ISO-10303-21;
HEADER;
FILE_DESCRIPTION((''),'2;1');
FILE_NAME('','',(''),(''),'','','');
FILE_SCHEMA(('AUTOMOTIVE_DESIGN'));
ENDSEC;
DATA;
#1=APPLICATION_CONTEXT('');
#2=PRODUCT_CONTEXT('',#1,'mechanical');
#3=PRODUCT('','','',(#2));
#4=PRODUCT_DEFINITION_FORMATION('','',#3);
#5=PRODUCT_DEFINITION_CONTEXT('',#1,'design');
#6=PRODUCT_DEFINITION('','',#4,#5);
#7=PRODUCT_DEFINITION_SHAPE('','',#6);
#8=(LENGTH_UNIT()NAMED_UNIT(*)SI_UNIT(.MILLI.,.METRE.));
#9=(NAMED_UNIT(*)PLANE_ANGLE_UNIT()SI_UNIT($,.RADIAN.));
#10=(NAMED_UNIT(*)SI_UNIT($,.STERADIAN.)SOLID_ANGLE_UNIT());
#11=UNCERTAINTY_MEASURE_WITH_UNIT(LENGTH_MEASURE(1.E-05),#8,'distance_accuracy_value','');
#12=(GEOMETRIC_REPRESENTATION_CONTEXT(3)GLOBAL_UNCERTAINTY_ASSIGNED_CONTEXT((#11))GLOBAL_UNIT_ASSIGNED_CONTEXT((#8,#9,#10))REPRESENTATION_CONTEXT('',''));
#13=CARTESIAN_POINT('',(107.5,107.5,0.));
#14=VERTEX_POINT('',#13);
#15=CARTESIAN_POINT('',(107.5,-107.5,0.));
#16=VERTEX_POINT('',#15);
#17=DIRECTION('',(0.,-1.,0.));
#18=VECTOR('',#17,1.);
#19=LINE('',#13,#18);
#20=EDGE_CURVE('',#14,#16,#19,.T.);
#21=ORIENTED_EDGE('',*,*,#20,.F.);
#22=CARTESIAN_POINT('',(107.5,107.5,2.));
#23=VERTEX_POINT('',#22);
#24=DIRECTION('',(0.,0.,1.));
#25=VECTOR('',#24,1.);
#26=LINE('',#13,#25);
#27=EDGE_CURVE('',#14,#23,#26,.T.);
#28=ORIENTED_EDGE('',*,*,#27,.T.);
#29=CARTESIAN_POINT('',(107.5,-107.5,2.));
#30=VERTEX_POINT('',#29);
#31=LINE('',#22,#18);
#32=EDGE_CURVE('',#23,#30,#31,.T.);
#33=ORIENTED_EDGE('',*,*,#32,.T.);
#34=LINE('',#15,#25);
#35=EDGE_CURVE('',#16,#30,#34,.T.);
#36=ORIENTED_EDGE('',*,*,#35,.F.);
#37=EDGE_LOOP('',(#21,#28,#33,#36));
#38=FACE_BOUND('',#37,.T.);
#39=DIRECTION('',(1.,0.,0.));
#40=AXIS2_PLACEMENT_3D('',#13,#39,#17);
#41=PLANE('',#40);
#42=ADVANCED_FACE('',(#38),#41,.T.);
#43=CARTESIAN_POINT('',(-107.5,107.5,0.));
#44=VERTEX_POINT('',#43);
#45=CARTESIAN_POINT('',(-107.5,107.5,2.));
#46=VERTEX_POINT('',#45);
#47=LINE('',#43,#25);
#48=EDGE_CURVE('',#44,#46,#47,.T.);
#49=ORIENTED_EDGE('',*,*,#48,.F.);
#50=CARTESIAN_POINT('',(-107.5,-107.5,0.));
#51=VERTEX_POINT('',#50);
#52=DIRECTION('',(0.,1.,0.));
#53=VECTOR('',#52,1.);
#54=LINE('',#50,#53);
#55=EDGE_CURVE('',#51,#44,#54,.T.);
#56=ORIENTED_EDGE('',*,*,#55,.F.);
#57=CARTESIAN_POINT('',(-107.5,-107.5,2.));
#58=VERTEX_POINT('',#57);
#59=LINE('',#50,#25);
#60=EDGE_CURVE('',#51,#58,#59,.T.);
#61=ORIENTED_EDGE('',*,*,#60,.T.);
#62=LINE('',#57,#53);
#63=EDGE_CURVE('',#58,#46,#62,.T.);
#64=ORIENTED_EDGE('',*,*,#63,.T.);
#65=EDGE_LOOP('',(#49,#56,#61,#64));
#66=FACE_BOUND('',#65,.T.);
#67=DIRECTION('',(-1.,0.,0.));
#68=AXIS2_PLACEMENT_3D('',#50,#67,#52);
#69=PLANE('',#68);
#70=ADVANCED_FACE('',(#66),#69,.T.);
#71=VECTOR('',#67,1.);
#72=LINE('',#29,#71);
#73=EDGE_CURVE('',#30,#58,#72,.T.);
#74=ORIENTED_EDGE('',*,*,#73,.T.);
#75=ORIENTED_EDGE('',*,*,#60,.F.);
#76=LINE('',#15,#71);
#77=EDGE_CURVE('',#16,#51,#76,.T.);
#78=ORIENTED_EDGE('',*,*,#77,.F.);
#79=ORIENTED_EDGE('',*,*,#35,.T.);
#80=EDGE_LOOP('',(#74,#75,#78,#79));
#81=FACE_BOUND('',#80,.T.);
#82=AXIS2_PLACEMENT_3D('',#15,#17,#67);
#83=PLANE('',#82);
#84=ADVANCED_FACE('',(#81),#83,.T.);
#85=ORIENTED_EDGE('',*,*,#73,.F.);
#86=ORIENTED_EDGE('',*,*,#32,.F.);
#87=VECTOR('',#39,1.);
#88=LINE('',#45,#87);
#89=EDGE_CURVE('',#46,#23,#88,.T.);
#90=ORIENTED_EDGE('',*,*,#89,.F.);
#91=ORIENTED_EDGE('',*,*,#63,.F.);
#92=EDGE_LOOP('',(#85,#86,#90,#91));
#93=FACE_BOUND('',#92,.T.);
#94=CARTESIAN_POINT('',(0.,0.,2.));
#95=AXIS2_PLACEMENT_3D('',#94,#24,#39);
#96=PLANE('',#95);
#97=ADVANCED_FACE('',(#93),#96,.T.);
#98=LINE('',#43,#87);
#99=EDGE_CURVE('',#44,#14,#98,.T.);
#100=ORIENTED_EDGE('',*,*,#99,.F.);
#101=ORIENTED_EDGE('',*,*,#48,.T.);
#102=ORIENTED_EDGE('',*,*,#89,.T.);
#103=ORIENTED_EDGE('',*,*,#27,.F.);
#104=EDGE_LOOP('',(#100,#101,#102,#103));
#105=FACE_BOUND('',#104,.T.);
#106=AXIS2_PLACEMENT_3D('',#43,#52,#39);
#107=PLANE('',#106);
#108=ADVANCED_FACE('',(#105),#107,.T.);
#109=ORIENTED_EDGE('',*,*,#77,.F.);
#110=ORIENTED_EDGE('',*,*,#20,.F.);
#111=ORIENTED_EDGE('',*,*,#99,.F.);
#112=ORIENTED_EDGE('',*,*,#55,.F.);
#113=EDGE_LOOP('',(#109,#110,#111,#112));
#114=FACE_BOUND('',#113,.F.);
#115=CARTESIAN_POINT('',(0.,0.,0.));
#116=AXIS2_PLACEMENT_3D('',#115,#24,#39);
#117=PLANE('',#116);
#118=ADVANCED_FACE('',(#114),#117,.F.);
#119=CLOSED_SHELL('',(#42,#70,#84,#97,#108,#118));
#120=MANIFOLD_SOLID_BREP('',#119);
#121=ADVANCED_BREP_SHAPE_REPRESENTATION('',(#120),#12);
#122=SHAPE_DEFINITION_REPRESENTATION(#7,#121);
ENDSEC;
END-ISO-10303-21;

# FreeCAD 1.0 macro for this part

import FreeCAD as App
import Part
import Sketcher
from FreeCAD import Vector


def add_polygon(sketch, points):
    """Adds a closed chain of lines whose ends are joined by coincident constraints."""
    first, n = sketch.GeometryCount, len(points)
    for a, b in zip(points, points[1:] + points[:1]):
        sketch.addGeometry(Part.LineSegment(App.Vector(*a, 0), App.Vector(*b, 0)), False)
    for i in range(n):
        sketch.addConstraint(Sketcher.Constraint("Coincident", first + i, 2, first + (i + 1) % n, 1))

doc = App.newDocument("Part")
params = doc.addObject("Spreadsheet::Sheet", "Params")
for row, (alias, value) in enumerate([
    ("sketch1_width", "215 mm"),
    ("pad1_length", "2 mm"),
], start=1):
    params.set(f"A{row}", alias)
    params.set(f"B{row}", "=" + value)
    params.setAlias(f"B{row}", alias)

body = doc.addObject("PartDesign::Body", "Body")

sketch1 = body.newObject("Sketcher::SketchObject", "Sketch")
sketch1.AttachmentSupport = (doc.getObject("XY_Plane"), [""])
sketch1.MapMode = "FlatFace"
add_polygon(sketch1, [(108, 108), (-108, 108), (-108, -108), (108, -108)])
sketch1.addConstraint(Sketcher.Constraint("Horizontal", 0))
sketch1.addConstraint(Sketcher.Constraint("Vertical", 1))
sketch1.addConstraint(Sketcher.Constraint("Horizontal", 2))
sketch1.addConstraint(Sketcher.Constraint("Vertical", 3))
sketch1.addConstraint(Sketcher.Constraint("Symmetric", 0, 2, 2, 2, -1, 1))
sketch1.addConstraint(Sketcher.Constraint("Equal", 2, 1))
sketch1.addConstraint(Sketcher.Constraint("DistanceX", 0, 2, 0, 1, 215.0))
sketch1.setExpression("Constraints[10]", "Params.sketch1_width")
pad1 = body.newObject("PartDesign::Pad", "Pad")
pad1.Profile = sketch1
pad1.setExpression("Length", "Params.pad1_length")

doc.recompute()
